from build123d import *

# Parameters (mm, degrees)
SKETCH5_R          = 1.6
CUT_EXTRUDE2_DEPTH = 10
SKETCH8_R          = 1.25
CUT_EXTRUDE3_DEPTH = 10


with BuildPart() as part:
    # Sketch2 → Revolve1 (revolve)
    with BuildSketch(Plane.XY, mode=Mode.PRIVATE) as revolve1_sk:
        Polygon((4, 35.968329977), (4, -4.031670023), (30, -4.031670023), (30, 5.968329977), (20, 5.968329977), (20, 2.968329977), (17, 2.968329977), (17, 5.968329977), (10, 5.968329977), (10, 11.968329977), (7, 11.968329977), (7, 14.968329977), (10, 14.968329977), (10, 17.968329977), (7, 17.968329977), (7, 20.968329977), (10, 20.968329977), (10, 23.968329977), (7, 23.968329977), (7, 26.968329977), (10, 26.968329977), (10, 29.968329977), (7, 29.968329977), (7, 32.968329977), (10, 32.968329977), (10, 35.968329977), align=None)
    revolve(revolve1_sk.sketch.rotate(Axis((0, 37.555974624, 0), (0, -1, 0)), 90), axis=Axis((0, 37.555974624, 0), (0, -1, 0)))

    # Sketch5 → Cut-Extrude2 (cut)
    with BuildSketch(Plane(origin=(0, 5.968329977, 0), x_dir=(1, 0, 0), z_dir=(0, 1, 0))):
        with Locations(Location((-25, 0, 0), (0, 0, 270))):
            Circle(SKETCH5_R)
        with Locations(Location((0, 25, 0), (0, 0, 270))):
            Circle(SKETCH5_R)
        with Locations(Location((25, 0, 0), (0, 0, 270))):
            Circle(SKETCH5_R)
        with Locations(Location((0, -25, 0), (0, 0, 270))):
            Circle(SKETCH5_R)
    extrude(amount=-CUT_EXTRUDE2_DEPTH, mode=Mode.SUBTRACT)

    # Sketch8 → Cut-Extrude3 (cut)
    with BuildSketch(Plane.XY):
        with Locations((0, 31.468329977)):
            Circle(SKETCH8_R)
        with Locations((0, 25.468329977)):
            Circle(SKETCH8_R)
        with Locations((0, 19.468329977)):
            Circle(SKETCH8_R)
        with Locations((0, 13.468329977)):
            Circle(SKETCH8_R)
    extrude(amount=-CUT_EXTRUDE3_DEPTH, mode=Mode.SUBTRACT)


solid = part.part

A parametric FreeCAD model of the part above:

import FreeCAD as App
import Part
import Sketcher
from FreeCAD import Vector
Q = App.Units.Quantity


def add_polygon(sketch, points):
    """Adds a closed chain of lines whose ends are joined by coincident constraints."""
    first, n = sketch.GeometryCount, len(points)
    for a, b in zip(points, points[1:] + points[:1]):
        sketch.addGeometry(Part.LineSegment(App.Vector(*a, 0), App.Vector(*b, 0)), False)
    for i in range(n):
        sketch.addConstraint(Sketcher.Constraint("Coincident", first + i, 2, first + (i + 1) % n, 1))

doc = App.newDocument("Part")
body = doc.addObject("PartDesign::Body", "Body")

sketch1 = body.newObject("Sketcher::SketchObject", "Sketch")
sketch1.AttachmentSupport = (doc.getObject("XY_Plane"), [""])
sketch1.MapMode = "FlatFace"
add_polygon(sketch1, [(4, 36), (4, -4), (30, -4), (30, 6), (20, 6), (20, 3), (17, 3), (17, 6), (10, 6), (10, 12), (7, 12), (7, 15), (10, 15), (10, 18), (7, 18), (7, 21), (10, 21), (10, 24), (7, 24), (7, 27), (10, 27), (10, 30), (7, 30), (7, 33), (10, 33), (10, 36)])
sketch1.addConstraint([
    Sketcher.Constraint("Vertical", 0),
    Sketcher.Constraint("Horizontal", 1),
    Sketcher.Constraint("Vertical", 2),
    Sketcher.Constraint("Horizontal", 3),
    Sketcher.Constraint("Vertical", 4),
    Sketcher.Constraint("Horizontal", 5),
    Sketcher.Constraint("Vertical", 6),
    Sketcher.Constraint("Horizontal", 7),
    Sketcher.Constraint("Vertical", 8),
    Sketcher.Constraint("Horizontal", 9),
    Sketcher.Constraint("Vertical", 10),
    Sketcher.Constraint("Horizontal", 11),
    Sketcher.Constraint("Vertical", 12),
    Sketcher.Constraint("Horizontal", 13),
    Sketcher.Constraint("Vertical", 14),
    Sketcher.Constraint("Horizontal", 15),
    Sketcher.Constraint("Vertical", 16),
    Sketcher.Constraint("Horizontal", 17),
    Sketcher.Constraint("Vertical", 18),
    Sketcher.Constraint("Horizontal", 19),
    Sketcher.Constraint("Vertical", 20),
    Sketcher.Constraint("Horizontal", 21),
    Sketcher.Constraint("Vertical", 22),
    Sketcher.Constraint("Horizontal", 23),
    Sketcher.Constraint("Vertical", 24),
    Sketcher.Constraint("Horizontal", 25),
    Sketcher.Constraint("Horizontal", 3, 2, 6, 2),
    Sketcher.Constraint("Vertical", 8, 2, 11, 2),
    Sketcher.Constraint("Vertical", 10, 2, 13, 2),
    Sketcher.Constraint("Vertical", 12, 2, 15, 2),
    Sketcher.Constraint("Vertical", 14, 2, 17, 2),
    Sketcher.Constraint("Vertical", 16, 2, 19, 2),
    Sketcher.Constraint("Vertical", 18, 2, 21, 2),
    Sketcher.Constraint("Vertical", 20, 2, 23, 2),
    Sketcher.Constraint("Equal", 5, 9),
    Sketcher.Constraint("Equal", 3, 2),
    Sketcher.Constraint("Equal", 23, 4),
    Sketcher.Constraint("Equal", 25, 8),
    Sketcher.Constraint("Equal", 6, 10),
    Sketcher.Constraint("Equal", 10, 12),
    Sketcher.Constraint("Equal", 12, 14),
    Sketcher.Constraint("Equal", 14, 16),
    Sketcher.Constraint("Equal", 16, 18),
    Sketcher.Constraint("Equal", 18, 20),
    Sketcher.Constraint("Equal", 20, 22),
    Sketcher.Constraint("Equal", 22, 24),
    Sketcher.Constraint("DistanceX", 1, 1, 1, 2, Q("26 mm")),
    Sketcher.Constraint("DistanceX", 3, 2, 3, 1, Q("10 mm")),
    Sketcher.Constraint("DistanceX", 5, 2, 5, 1, Q("3 mm")),
    Sketcher.Constraint("DistanceX", 7, 2, 7, 1, Q("7 mm")),
    Sketcher.Constraint("DistanceX", -1, 1, 0, 2, Q("4 mm")),
    Sketcher.Constraint("DistanceY", 0, 2, -1, 1, Q("4.03167 mm")),
])
revolution = body.newObject("PartDesign::Revolution", "Revolution")
revolution.Profile = sketch1
revolution.ReferenceAxis = (sketch1, ["V_Axis"])
revolution.Angle = 360

sketch2 = body.newObject("Sketcher::SketchObject", "Sketch001")
sketch2.AttachmentSupport = (doc.getObject("XZ_Plane"), [""])
sketch2.MapMode = "FlatFace"
sketch2.AttachmentOffset = App.Placement(Vector(0, 0, -5.96833), App.Rotation())
sketch2.addGeometry([
    Part.Circle(Vector(-25, 0, 0), Vector(0, 0, 1), 1.6),
    Part.Circle(Vector(0, -25, 0), Vector(0, 0, 1), 1.6),
    Part.Circle(Vector(25, 0, 0), Vector(0, 0, 1), 1.6),
    Part.Circle(Vector(0, 25, 0), Vector(0, 0, 1), 1.6),
], False)
sketch2.addConstraint([
    Sketcher.Constraint("Equal", 0, 1),
    Sketcher.Constraint("Equal", 1, 2),
    Sketcher.Constraint("Equal", 2, 3),
    Sketcher.Constraint("Symmetric", 0, 3, 2, 3, -1, 1),
    Sketcher.Constraint("Symmetric", 1, 3, 3, 3, -1, 1),
    Sketcher.Constraint("PointOnObject", 0, 3, -1),
    Sketcher.Constraint("PointOnObject", 1, 3, -2),
    Sketcher.Constraint("Diameter", 0, Q("3.2 mm")),
    Sketcher.Constraint("DistanceX", 0, 3, -1, 1, Q("25 mm")),
    Sketcher.Constraint("DistanceY", 1, 3, -1, 1, Q("25 mm")),
])
pocket1 = body.newObject("PartDesign::Pocket", "Pocket")
pocket1.Profile = sketch2
pocket1.Length = 10
pocket1.Reversed = True

sketch3 = body.newObject("Sketcher::SketchObject", "Sketch002")
sketch3.AttachmentSupport = (doc.getObject("XY_Plane"), [""])
sketch3.MapMode = "FlatFace"
sketch3.addGeometry([
    Part.Circle(Vector(0, 31.5, 0), Vector(0, 0, 1), 1.2),
    Part.Circle(Vector(0, 25.5, 0), Vector(0, 0, 1), 1.2),
    Part.Circle(Vector(0, 19.5, 0), Vector(0, 0, 1), 1.2),
    Part.Circle(Vector(0, 13.5, 0), Vector(0, 0, 1), 1.2),
], False)
sketch3.addConstraint([
    Sketcher.Constraint("Equal", 0, 1),
    Sketcher.Constraint("Equal", 1, 2),
    Sketcher.Constraint("Equal", 2, 3),
    Sketcher.Constraint("PointOnObject", 0, 3, -2),
    Sketcher.Constraint("PointOnObject", 1, 3, -2),
    Sketcher.Constraint("PointOnObject", 2, 3, -2),
    Sketcher.Constraint("PointOnObject", 3, 3, -2),
    Sketcher.Constraint("Diameter", 0, Q("2.5 mm")),
    Sketcher.Constraint("DistanceY", 1, 3, 0, 3, Q("6 mm")),
    Sketcher.Constraint("DistanceY", 2, 3, 1, 3, Q("6 mm")),
    Sketcher.Constraint("DistanceY", 3, 3, 2, 3, Q("6 mm")),
    Sketcher.Constraint("DistanceY", -1, 1, 0, 3, Q("31.46833 mm")),
])
pocket2 = body.newObject("PartDesign::Pocket", "Pocket001")
pocket2.Profile = sketch3
pocket2.Length = 10

doc.recompute()
